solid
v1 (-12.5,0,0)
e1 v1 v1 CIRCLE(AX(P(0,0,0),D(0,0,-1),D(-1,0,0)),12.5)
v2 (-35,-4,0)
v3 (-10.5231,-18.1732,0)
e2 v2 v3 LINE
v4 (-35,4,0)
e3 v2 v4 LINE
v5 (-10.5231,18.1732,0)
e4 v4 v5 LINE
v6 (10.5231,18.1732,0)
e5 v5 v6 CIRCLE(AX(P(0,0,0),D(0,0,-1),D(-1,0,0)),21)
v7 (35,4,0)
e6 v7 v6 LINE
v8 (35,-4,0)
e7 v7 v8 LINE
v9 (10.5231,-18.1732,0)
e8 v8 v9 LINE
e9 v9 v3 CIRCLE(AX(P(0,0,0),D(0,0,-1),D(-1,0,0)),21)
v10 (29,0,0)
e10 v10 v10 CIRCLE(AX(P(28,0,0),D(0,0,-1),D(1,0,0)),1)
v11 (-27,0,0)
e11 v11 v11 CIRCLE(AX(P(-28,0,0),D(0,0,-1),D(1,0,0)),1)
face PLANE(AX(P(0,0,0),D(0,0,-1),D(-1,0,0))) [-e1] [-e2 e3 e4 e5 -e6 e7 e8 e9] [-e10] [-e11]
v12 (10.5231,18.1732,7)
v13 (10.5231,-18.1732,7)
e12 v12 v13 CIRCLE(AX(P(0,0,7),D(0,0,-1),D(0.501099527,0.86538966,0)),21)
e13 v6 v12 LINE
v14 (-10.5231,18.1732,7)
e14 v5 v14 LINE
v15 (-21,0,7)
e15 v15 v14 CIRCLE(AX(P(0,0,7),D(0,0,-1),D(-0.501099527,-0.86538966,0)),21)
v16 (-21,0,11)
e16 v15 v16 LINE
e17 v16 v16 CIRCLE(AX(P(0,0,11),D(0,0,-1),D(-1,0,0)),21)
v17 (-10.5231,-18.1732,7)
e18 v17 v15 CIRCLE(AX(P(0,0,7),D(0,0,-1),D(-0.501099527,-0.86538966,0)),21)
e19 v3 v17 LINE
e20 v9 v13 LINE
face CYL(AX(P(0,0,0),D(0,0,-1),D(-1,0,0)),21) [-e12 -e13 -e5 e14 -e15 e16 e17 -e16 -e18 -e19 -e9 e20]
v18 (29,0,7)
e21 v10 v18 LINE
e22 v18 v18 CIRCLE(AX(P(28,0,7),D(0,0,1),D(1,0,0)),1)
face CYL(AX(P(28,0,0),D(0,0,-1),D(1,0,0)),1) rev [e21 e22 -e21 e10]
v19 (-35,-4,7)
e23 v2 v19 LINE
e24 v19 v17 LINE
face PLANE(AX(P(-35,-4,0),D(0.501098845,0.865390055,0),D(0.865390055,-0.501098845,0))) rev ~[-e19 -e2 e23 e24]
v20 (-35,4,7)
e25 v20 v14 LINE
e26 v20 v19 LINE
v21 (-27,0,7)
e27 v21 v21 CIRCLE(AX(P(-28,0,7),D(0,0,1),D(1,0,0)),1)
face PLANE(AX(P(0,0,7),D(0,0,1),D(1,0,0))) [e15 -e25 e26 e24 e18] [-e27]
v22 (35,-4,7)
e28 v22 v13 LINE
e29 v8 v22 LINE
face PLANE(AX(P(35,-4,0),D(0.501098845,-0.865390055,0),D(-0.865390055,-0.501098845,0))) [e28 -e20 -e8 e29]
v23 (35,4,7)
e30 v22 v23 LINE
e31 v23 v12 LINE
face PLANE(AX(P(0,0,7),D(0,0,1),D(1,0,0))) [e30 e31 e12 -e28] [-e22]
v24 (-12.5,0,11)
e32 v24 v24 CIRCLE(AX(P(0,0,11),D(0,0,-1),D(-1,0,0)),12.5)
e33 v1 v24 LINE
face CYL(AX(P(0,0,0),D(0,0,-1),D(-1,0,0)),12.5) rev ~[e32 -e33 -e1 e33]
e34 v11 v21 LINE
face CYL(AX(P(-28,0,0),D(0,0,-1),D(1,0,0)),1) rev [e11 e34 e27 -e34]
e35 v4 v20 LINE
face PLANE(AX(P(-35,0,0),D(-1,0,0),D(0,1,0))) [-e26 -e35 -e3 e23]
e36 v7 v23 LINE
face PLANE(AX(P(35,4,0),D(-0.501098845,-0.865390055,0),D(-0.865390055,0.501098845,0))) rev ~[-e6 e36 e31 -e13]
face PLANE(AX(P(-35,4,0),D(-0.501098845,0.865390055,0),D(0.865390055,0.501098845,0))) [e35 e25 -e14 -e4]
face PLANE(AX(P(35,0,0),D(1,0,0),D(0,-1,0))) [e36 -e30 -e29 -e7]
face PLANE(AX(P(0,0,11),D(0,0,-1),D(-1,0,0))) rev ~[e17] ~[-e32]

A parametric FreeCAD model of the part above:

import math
import FreeCAD as App
import Part
import Sketcher
Q = App.Units.Quantity

doc = App.newDocument("Part")
body = doc.addObject("PartDesign::Body", "Body")
body.AllowCompound = True

# Sketch on XY plane
sketch1 = body.newObject("Sketcher::SketchObject", "Sketch")
sketch1.AttachmentSupport = (doc.getObject("XY_Plane"), [""])
sketch1.MapMode = "FlatFace"
sketch1.addGeometry([
    Part.LineSegment(App.Vector(35, -4, 0), App.Vector(35, 4, 0)),  # 0
    Part.LineSegment(App.Vector(35, 4, 0), App.Vector(10.5, 18.2, 0)),  # 1
    Part.ArcOfCircle(Part.Circle(App.Vector(0, 0, 0), App.Vector(0, 0, 1), 21), math.radians(-60), math.radians(60)),  # 2
    Part.LineSegment(App.Vector(10.5, -18.2, 0), App.Vector(35, -4, 0)),  # 3
    Part.Circle(App.Vector(28, 0, 0), App.Vector(0, 0, 1), 1),  # 4
    Part.LineSegment(App.Vector(-35, 4, 0), App.Vector(-35, -4, 0)),  # 5
    Part.LineSegment(App.Vector(-35, -4, 0), App.Vector(-10.5, -18.2, 0)),  # 6
    Part.ArcOfCircle(Part.Circle(App.Vector(0, 0, 0), App.Vector(0, 0, 1), 21), math.radians(120), math.radians(240)),  # 7
    Part.LineSegment(App.Vector(-10.5, 18.2, 0), App.Vector(-35, 4, 0)),  # 8
    Part.Circle(App.Vector(-28, 0, 0), App.Vector(0, 0, 1), 1),  # 9
], False)
sketch1.addConstraint([
    Sketcher.Constraint("Coincident", 0, 2, 1, 1),
    Sketcher.Constraint("Tangent", 1, 2, 2, 2),
    Sketcher.Constraint("Tangent", 2, 1, 3, 1),
    Sketcher.Constraint("Coincident", 3, 2, 0, 1),
    Sketcher.Constraint("Coincident", 5, 2, 6, 1),
    Sketcher.Constraint("Tangent", 6, 2, 7, 2),
    Sketcher.Constraint("Tangent", 7, 1, 8, 1),
    Sketcher.Constraint("Coincident", 8, 2, 5, 1),
    Sketcher.Constraint("Vertical", 0),
    Sketcher.Constraint("Vertical", 5),
    Sketcher.Constraint("Coincident", 2, 3, -1, 1),
    Sketcher.Constraint("Coincident", 7, 3, -1, 1),
    Sketcher.Constraint("Equal", 2, 7),
    Sketcher.Constraint("Equal", 4, 9),
    Sketcher.Constraint("Symmetric", 4, 3, 9, 3, -1, 1),
    Sketcher.Constraint("Symmetric", 0, 2, 5, 2, -1, 1),
    Sketcher.Constraint("PointOnObject", 4, 3, -1),
    Sketcher.Constraint("Parallel", 3, 8),
    Sketcher.Constraint("Horizontal", 3, 2, 5, 2),
    Sketcher.Constraint("Diameter", 4, Q("2 mm")),
    Sketcher.Constraint("Radius", 2, Q("21 mm")),
    Sketcher.Constraint("DistanceY", 0, 1, 0, 2, Q("8 mm")),
    Sketcher.Constraint("DistanceX", -1, 1, 4, 3, Q("28 mm")),
    Sketcher.Constraint("DistanceX", -1, 1, 0, 2, Q("35 mm")),
])
pad1 = body.newObject("PartDesign::Pad", "Pad")
pad1.Profile = sketch1
pad1.Length = 7

# Sketch on XY plane
sketch2 = body.newObject("Sketcher::SketchObject", "Sketch001")
sketch2.AttachmentSupport = (doc.getObject("XY_Plane"), [""])
sketch2.MapMode = "FlatFace"
sketch2.addGeometry([
    Part.Circle(App.Vector(0, 0, 0), App.Vector(0, 0, 1), 21),
    Part.Circle(App.Vector(0, 0, 0), App.Vector(0, 0, 1), 12),
], False)
sketch2.addConstraint([
    Sketcher.Constraint("Coincident", 0, 3, -1, 1),
    Sketcher.Constraint("Coincident", 1, 3, -1, 1),
    Sketcher.Constraint("Diameter", 1, Q("25 mm")),
    Sketcher.Constraint("Diameter", 0, Q("42 mm")),
])
pad2 = body.newObject("PartDesign::Pad", "Pad001")
pad2.Profile = sketch2
pad2.Length = 11

doc.recompute()
